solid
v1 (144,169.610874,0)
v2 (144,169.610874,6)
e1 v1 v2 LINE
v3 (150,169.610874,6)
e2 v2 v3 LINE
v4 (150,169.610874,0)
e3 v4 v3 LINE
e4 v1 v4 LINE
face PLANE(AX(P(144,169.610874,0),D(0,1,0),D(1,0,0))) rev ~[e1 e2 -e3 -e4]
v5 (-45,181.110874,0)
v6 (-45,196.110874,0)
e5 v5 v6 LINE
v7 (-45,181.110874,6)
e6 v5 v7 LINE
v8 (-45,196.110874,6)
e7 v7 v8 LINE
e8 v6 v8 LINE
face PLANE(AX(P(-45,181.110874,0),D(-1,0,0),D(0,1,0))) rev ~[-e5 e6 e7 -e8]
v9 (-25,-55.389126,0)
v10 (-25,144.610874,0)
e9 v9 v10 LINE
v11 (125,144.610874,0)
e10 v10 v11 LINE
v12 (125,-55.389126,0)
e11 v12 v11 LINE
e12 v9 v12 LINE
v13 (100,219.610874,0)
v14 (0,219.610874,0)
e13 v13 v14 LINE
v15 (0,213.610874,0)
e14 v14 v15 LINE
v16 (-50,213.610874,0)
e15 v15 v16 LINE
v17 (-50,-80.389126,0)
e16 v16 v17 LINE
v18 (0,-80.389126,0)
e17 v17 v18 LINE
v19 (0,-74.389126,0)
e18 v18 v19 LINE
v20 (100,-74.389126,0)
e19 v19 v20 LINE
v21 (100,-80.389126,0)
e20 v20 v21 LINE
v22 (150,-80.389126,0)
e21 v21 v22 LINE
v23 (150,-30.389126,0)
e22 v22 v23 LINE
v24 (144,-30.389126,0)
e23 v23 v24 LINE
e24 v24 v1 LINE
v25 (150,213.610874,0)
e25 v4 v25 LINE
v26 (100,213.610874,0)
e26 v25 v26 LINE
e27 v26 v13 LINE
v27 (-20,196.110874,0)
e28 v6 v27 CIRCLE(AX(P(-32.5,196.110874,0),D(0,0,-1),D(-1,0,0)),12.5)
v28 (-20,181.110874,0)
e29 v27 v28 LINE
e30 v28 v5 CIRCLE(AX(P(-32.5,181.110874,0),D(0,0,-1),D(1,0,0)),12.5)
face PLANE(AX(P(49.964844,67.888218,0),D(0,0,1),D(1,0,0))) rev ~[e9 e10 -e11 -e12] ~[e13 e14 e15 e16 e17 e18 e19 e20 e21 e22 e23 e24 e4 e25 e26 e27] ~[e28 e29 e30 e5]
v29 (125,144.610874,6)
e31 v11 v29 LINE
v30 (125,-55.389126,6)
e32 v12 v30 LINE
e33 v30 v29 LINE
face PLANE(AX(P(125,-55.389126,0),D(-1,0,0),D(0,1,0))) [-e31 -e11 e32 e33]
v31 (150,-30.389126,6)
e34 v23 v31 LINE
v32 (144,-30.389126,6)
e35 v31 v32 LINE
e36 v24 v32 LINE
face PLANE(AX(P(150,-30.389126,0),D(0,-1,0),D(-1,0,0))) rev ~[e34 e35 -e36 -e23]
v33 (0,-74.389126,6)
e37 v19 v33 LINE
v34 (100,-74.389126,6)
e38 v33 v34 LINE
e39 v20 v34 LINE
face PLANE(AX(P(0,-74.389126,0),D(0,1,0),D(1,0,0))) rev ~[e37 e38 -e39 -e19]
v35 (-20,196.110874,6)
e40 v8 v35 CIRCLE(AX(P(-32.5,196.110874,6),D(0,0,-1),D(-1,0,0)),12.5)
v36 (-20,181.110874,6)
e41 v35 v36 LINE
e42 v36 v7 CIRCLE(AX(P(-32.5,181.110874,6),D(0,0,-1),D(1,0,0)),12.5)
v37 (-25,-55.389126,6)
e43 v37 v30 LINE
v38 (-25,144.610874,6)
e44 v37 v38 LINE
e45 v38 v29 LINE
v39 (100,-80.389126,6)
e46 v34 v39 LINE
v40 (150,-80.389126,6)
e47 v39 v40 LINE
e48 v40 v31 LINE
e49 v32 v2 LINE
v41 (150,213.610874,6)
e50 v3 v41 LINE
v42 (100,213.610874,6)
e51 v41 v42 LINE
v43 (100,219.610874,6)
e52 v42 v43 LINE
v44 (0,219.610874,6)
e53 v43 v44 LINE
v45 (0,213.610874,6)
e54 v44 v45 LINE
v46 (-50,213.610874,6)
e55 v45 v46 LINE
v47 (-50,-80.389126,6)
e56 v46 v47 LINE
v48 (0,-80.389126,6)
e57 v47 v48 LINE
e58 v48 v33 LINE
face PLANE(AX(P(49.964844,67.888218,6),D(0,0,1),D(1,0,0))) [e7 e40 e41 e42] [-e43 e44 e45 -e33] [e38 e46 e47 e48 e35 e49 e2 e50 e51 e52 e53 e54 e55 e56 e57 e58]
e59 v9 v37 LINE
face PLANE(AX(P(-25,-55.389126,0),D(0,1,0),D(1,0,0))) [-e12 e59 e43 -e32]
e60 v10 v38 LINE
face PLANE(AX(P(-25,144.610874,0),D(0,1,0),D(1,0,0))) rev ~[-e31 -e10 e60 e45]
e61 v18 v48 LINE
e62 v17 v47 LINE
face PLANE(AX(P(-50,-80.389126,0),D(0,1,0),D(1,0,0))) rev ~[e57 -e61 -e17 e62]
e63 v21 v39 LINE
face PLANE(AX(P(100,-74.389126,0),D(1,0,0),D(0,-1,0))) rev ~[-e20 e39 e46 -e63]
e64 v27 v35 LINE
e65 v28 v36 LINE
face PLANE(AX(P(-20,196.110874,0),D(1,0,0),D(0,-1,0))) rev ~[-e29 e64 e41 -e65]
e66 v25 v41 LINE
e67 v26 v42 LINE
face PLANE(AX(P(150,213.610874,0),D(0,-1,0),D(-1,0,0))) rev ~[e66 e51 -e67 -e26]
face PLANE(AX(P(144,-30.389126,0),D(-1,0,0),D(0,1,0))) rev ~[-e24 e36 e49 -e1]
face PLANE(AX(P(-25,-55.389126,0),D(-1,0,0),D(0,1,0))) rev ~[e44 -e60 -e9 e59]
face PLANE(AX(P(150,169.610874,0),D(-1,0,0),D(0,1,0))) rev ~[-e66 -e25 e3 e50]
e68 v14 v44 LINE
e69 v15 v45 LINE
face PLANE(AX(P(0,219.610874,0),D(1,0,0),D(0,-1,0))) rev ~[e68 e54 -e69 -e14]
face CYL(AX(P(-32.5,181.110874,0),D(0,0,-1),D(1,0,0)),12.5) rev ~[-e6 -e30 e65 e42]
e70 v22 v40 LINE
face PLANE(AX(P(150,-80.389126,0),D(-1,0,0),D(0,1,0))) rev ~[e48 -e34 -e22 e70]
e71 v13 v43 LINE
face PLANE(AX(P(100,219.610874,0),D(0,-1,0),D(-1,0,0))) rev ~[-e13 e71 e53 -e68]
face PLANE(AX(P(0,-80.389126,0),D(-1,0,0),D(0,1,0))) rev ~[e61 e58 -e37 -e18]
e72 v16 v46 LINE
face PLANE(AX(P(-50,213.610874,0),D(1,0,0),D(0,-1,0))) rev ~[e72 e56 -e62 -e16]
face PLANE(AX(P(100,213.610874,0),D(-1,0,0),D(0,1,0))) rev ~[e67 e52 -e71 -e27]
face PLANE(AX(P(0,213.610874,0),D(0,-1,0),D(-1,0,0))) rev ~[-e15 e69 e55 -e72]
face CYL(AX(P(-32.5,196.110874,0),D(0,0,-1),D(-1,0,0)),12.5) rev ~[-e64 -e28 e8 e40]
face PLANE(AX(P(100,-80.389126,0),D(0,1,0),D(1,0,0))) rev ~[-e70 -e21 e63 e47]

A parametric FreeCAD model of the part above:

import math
import FreeCAD as App
import Part
import Sketcher

V = App.Vector
Q = App.Units.Quantity


def add_polygon(sketch, points):
    """Adds a closed chain of lines whose ends are joined by coincident constraints."""
    first, n = sketch.GeometryCount, len(points)
    for a, b in zip(points, points[1:] + points[:1]):
        sketch.addGeometry(Part.LineSegment(App.Vector(*a, 0), App.Vector(*b, 0)), False)
    for i in range(n):
        sketch.addConstraint(Sketcher.Constraint("Coincident", first + i, 2, first + (i + 1) % n, 1))

doc = App.newDocument("Part")
body = doc.addObject("PartDesign::Body", "Body")

sketch1 = doc.addObject("Sketcher::SketchObject", "Sketch")
body.addObject(sketch1)
sketch1.AttachmentSupport = (doc.XY_Plane, [""])
sketch1.MapMode = "FlatFace"
add_polygon(sketch1, [(0, 214), (-50, 214), (-50, -80), (0, -80), (0, -74), (100, -74), (100, -80), (150, -80), (150, -30), (144, -30), (144, 170), (150, 170), (150, 214), (100, 214), (100, 220), (0, 220)])
add_polygon(sketch1, [(125, -55), (-25, -55), (-25, 145), (125, 145)])
sketch1.addGeometry(Part.ArcOfCircle(Part.Circle(V(-32, 181, 0), V(0, 0, 1), 12), math.radians(180), math.radians(360)), False)
sketch1.addGeometry(Part.LineSegment(V(-45, 181, 0), V(-45, 196, 0)), False)
sketch1.addGeometry(Part.ArcOfCircle(Part.Circle(V(-32, 196, 0), V(0, 0, 1), 12), math.radians(0), math.radians(180)), False)
sketch1.addGeometry(Part.LineSegment(V(-20, 196, 0), V(-20, 181, 0)), False)
sketch1.addConstraint([
    Sketcher.Constraint("Tangent", 20, 1, 21, 1),
    Sketcher.Constraint("Tangent", 21, 2, 22, 2),
    Sketcher.Constraint("Tangent", 22, 1, 23, 1),
    Sketcher.Constraint("Tangent", 23, 2, 20, 2),
    Sketcher.Constraint("Horizontal", 0),
    Sketcher.Constraint("Vertical", 1),
    Sketcher.Constraint("Horizontal", 2),
    Sketcher.Constraint("Vertical", 3),
    Sketcher.Constraint("Horizontal", 4),
    Sketcher.Constraint("Vertical", 5),
    Sketcher.Constraint("Horizontal", 6),
    Sketcher.Constraint("Vertical", 7),
    Sketcher.Constraint("Horizontal", 8),
    Sketcher.Constraint("Vertical", 9),
    Sketcher.Constraint("Horizontal", 10),
    Sketcher.Constraint("Vertical", 11),
    Sketcher.Constraint("Horizontal", 12),
    Sketcher.Constraint("Vertical", 13),
    Sketcher.Constraint("Horizontal", 14),
    Sketcher.Constraint("Vertical", 15),
    Sketcher.Constraint("Horizontal", 16),
    Sketcher.Constraint("Vertical", 17),
    Sketcher.Constraint("Horizontal", 18),
    Sketcher.Constraint("Vertical", 19),
    Sketcher.Constraint("Vertical", 21),
    Sketcher.Constraint("Vertical", 23),
    Sketcher.Constraint("PointOnObject", 2, 2, -2),
    Sketcher.Constraint("PointOnObject", 14, 2, -2),
    Sketcher.Constraint("Horizontal", 2, 2, 5, 2),
    Sketcher.Constraint("Horizontal", 0, 2, 11, 2),
    Sketcher.Constraint("Vertical", 7, 2, 10, 2),
    Sketcher.Constraint("Vertical", 5, 2, 12, 2),
    Sketcher.Constraint("Equal", 2, 6),
    Sketcher.Constraint("Equal", 10, 3),
    Sketcher.Constraint("Equal", 12, 7),
    Sketcher.Constraint("Equal", 5, 13),
    Sketcher.Constraint("Equal", 9, 17),
    Sketcher.Constraint("Radius", 20, Q("12.5 mm")),
    Sketcher.Constraint("DistanceX", 0, 2, 0, 1, Q("50 mm")),
    Sketcher.Constraint("DistanceX", 4, 1, 4, 2, Q("100 mm")),
    Sketcher.Constraint("DistanceX", 8, 2, 8, 1, Q("6 mm")),
    Sketcher.Constraint("DistanceX", 16, 2, 16, 1, Q("150 mm")),
    Sketcher.Constraint("DistanceY", 1, 2, 1, 1, Q("294 mm")),
    Sketcher.Constraint("DistanceY", 9, 1, 9, 2, Q("200 mm")),
    Sketcher.Constraint("DistanceY", 21, 1, 21, 2, Q("15 mm")),
    Sketcher.Constraint("DistanceX", 16, 2, -1, 1, Q("25 mm")),
    Sketcher.Constraint("DistanceX", 20, 1, -1, 1, Q("45 mm")),
    Sketcher.Constraint("DistanceY", 3, 2, 16, 2, Q("19 mm")),
    Sketcher.Constraint("DistanceY", 22, 3, 0, 2, Q("17.5 mm")),
    Sketcher.Constraint("DistanceY", -1, 1, 20, 3, Q("181.110874 mm")),
])
pad1 = doc.addObject("PartDesign::Pad", "Pad")
body.addObject(pad1)
pad1.Profile = sketch1
pad1.Length = 6

doc.recompute()
